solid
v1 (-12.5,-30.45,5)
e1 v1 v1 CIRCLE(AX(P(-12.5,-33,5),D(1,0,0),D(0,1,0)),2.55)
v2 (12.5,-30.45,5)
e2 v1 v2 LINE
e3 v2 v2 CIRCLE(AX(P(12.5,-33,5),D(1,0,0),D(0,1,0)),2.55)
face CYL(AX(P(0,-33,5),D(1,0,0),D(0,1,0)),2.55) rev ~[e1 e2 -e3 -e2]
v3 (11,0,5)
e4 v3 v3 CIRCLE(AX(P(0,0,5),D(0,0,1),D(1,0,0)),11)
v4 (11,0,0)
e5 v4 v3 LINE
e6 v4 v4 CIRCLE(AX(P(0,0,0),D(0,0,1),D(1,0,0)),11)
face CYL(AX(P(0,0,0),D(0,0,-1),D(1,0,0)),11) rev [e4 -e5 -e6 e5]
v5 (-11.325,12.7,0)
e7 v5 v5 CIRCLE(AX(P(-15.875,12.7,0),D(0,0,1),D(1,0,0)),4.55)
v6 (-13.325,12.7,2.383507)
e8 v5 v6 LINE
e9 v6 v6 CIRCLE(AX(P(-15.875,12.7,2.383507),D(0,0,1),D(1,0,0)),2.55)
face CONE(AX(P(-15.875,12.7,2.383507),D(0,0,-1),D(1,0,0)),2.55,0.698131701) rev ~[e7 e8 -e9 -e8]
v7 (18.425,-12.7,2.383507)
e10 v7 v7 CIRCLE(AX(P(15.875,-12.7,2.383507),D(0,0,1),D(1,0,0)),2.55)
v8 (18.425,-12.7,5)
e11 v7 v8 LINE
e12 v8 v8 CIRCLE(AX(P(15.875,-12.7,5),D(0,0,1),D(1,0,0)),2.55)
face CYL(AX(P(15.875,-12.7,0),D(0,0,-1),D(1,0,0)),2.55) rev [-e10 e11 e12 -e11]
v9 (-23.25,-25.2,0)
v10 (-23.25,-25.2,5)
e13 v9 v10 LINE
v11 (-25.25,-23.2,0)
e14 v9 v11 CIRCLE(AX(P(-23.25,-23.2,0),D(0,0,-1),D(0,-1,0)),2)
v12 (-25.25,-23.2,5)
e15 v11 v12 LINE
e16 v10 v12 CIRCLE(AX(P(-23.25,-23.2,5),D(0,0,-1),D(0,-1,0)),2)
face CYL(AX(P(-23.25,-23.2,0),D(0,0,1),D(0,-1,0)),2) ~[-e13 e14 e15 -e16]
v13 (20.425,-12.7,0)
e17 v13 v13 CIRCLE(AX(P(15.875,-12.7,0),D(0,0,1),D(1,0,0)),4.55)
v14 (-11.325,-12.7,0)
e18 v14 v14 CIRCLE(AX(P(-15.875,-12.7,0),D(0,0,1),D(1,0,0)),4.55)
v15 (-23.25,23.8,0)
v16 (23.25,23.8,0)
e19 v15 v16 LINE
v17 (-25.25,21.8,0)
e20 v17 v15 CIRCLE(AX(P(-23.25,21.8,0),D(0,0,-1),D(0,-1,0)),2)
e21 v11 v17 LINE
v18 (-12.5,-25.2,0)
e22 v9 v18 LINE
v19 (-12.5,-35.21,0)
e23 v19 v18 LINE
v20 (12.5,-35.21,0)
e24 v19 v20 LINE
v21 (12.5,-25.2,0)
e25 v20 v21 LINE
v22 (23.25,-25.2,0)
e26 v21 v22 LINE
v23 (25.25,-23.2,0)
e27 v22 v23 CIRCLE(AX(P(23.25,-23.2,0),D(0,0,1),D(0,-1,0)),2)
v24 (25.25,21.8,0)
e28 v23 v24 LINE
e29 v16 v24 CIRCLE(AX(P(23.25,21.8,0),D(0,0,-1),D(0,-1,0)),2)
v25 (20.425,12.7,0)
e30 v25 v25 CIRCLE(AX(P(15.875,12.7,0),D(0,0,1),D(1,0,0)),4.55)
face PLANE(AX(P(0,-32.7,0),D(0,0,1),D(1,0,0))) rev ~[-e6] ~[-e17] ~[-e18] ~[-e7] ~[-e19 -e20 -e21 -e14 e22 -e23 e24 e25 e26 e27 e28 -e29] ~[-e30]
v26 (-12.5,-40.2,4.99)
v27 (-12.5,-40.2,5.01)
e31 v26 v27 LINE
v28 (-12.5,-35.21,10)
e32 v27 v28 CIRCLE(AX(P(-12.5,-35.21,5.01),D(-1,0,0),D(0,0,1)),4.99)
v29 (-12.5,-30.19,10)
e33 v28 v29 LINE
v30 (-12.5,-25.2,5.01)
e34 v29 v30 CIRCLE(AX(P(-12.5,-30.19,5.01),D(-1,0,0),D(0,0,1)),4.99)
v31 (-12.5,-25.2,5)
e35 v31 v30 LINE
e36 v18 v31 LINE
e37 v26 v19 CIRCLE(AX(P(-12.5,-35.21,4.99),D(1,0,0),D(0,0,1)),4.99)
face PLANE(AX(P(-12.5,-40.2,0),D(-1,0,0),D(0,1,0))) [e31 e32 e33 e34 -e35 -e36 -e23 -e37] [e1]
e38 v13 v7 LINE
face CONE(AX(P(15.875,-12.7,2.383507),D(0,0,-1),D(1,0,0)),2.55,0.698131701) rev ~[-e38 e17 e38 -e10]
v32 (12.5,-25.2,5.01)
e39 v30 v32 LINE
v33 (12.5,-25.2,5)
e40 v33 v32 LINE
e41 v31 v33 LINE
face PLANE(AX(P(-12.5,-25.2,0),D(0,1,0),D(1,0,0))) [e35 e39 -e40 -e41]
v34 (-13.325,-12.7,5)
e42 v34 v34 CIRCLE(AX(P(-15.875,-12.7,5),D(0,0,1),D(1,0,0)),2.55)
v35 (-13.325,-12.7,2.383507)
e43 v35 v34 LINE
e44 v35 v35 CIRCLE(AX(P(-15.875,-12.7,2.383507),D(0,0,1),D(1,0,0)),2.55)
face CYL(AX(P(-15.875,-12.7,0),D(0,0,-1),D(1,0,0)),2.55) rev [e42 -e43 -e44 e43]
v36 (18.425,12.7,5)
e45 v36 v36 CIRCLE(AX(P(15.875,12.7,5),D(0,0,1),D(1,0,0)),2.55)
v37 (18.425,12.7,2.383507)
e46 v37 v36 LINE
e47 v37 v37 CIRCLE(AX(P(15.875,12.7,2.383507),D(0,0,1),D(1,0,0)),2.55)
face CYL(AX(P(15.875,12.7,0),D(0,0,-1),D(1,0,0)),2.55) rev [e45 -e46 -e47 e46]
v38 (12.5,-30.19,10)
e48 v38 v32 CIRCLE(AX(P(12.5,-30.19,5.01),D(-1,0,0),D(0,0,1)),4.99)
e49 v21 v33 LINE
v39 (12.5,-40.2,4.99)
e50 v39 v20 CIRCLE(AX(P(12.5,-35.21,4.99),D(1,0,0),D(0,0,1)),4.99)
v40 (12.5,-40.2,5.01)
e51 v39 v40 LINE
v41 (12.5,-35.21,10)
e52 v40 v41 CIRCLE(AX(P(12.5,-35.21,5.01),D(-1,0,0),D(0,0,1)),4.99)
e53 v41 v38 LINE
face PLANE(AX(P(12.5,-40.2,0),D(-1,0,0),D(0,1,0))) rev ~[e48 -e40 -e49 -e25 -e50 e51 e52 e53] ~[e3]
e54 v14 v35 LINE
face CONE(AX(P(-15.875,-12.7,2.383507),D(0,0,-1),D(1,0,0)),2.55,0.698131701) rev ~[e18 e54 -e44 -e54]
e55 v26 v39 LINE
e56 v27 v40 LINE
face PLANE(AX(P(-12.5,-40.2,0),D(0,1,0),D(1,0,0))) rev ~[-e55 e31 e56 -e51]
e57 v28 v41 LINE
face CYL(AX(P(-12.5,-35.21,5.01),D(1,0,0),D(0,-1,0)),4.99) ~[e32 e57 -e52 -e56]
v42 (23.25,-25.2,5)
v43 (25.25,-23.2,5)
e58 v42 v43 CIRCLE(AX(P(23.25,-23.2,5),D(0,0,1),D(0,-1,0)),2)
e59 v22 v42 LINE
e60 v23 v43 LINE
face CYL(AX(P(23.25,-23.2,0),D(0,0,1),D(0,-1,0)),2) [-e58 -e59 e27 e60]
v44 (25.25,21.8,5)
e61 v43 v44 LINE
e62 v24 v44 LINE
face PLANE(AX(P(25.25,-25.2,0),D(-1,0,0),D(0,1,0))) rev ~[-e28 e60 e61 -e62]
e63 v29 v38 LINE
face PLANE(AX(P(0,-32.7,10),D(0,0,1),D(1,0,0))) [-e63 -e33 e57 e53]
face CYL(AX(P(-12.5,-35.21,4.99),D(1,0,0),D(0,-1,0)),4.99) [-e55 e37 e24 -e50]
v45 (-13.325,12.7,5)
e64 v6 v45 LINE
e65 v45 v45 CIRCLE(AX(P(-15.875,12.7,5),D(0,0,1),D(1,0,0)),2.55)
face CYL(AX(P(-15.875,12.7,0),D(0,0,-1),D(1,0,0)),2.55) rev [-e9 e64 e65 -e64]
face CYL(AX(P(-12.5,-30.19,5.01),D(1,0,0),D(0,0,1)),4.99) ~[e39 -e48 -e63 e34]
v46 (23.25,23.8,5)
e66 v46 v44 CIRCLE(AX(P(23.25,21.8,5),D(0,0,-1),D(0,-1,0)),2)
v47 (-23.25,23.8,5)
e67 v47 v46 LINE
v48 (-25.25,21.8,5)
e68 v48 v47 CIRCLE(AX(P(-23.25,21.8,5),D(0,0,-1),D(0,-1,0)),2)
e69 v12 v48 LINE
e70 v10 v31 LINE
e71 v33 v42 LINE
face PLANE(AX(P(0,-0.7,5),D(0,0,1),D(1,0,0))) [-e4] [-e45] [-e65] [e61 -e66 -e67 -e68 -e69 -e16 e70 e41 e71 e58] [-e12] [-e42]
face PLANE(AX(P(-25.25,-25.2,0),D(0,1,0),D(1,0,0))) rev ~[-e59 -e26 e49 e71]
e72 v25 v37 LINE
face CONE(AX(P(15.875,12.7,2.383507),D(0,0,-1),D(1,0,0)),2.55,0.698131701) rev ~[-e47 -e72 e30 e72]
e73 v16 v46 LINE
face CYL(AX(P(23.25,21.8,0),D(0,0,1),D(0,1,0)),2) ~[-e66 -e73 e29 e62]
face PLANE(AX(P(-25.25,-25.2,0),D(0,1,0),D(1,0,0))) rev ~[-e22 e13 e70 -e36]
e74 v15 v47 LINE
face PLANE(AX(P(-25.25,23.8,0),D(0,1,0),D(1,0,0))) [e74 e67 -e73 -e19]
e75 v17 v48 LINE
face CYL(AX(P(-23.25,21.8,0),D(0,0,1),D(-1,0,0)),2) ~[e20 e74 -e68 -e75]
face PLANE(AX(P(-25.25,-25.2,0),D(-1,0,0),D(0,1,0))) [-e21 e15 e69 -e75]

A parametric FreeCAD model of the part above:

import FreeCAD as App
import Part
import Sketcher


def edges_at(feature, points):
    """Names of the edges that pass closest to the given points."""
    edges = feature.Shape.Edges
    near = lambda p: min(range(len(edges)), key=lambda i: edges[i].distToShape(Part.Vertex(*p))[0])
    return sorted({f"Edge{near(p) + 1}" for p in points})


def add_polygon(sketch, points):
    """Adds a closed chain of lines whose ends are joined by coincident constraints."""
    first, n = sketch.GeometryCount, len(points)
    for a, b in zip(points, points[1:] + points[:1]):
        sketch.addGeometry(Part.LineSegment(App.Vector(*a, 0), App.Vector(*b, 0)), False)
    for i in range(n):
        sketch.addConstraint(Sketcher.Constraint("Coincident", first + i, 2, first + (i + 1) % n, 1))

doc = App.newDocument("Part")
params = doc.addObject("Spreadsheet::Sheet", "Params")
for row, (alias, value) in enumerate([
    ("sketch1_diameter", "22 mm"),
    ("sketch1_diameter2", "5.1 mm"),
    ("sketch1_height", "49 mm"),
    ("sketch1_width", "50.5 mm"),
    ("pad1_length", "5 mm"),
    ("sketch2_width", "25 mm"),
    ("sketch2_height", "15 mm"),
    ("pad2_length", "10 mm"),
    ("sketch3_diameter", "5.1 mm"),
    ("pocket1_length", "25 mm"),
    ("fillet_radius", "4.99 mm"),
    ("fillet2_radius", "2 mm"),
    ("chamfer_size", "2 mm"),
], start=1):
    params.set(f"A{row}", alias)
    params.set(f"B{row}", "=" + value)
    params.setAlias(f"B{row}", alias)

body = doc.addObject("PartDesign::Body", "Body")

sketch1 = body.newObject("Sketcher::SketchObject", "Sketch")
sketch1.AttachmentSupport = (doc.getObject("XY_Plane"), [""])
sketch1.MapMode = "FlatFace"
add_polygon(sketch1, [(-25.2, 23.8), (-25.2, -25.2), (25.2, -25.2), (25.2, 23.8)])
sketch1.addGeometry(Part.Circle(App.Vector(-15.9, -12.7, 0), App.Vector(0, 0, 1), 2.5), False)
sketch1.addGeometry(Part.Circle(App.Vector(15.9, -12.7, 0), App.Vector(0, 0, 1), 2.5), False)
sketch1.addGeometry(Part.Circle(App.Vector(-15.9, 12.7, 0), App.Vector(0, 0, 1), 2.5), False)
sketch1.addGeometry(Part.Circle(App.Vector(0, 0, 0), App.Vector(0, 0, 1), 11), False)
sketch1.addGeometry(Part.Circle(App.Vector(15.9, 12.7, 0), App.Vector(0, 0, 1), 2.5), False)
sketch1.addConstraint([
    Sketcher.Constraint("Vertical", 0),
    Sketcher.Constraint("Horizontal", 1),
    Sketcher.Constraint("Vertical", 2),
    Sketcher.Constraint("Horizontal", 3),
    Sketcher.Constraint("Coincident", 7, 3, -1, 1),
    Sketcher.Constraint("Equal", 4, 5),
    Sketcher.Constraint("Equal", 5, 6),
    Sketcher.Constraint("Equal", 6, 8),
    Sketcher.Constraint("Symmetric", 5, 3, 6, 3, -1, 1),
    Sketcher.Constraint("Symmetric", 4, 3, 8, 3, -1, 1),
    Sketcher.Constraint("Symmetric", 4, 3, 5, 3, -2),
    Sketcher.Constraint("Diameter", 7, 22.0),
    Sketcher.Constraint("Diameter", 4, 5.1),
    Sketcher.Constraint("DistanceY", 0, 2, 0, 1, 49.0),
    Sketcher.Constraint("DistanceX", 1, 1, 1, 2, 50.5),
    Sketcher.Constraint("DistanceY", 4, 3, -1, 1, 12.7),
    Sketcher.Constraint("DistanceY", 0, 2, -1, 1, 25.2),
    Sketcher.Constraint("DistanceX", 0, 2, -1, 1, 25.25),
    Sketcher.Constraint("DistanceX", 4, 3, 5, 3, 31.75),
])
sketch1.setExpression("Constraints[15]", "Params.sketch1_diameter")
sketch1.setExpression("Constraints[16]", "Params.sketch1_diameter2")
sketch1.setExpression("Constraints[17]", "Params.sketch1_height")
sketch1.setExpression("Constraints[18]", "Params.sketch1_width")
pad1 = body.newObject("PartDesign::Pad", "Pad")
pad1.Profile = sketch1
pad1.setExpression("Length", "Params.pad1_length")

sketch2 = body.newObject("Sketcher::SketchObject", "Sketch001")
sketch2.AttachmentSupport = (doc.getObject("XY_Plane"), [""])
sketch2.MapMode = "FlatFace"
add_polygon(sketch2, [(-12, -25), (-12, -40), (12, -40), (12, -25)])
sketch2.addConstraint([
    Sketcher.Constraint("Vertical", 0),
    Sketcher.Constraint("Horizontal", 1),
    Sketcher.Constraint("Vertical", 2),
    Sketcher.Constraint("Horizontal", 3),
    Sketcher.Constraint("DistanceX", 1, 1, 1, 2, 25.0),
    Sketcher.Constraint("DistanceY", 0, 2, 0, 1, 15.0),
    Sketcher.Constraint("DistanceX", 0, 2, -1, 1, 12.5),
    Sketcher.Constraint("DistanceY", 0, 2, -1, 1, 40.2),
])
sketch2.setExpression("Constraints[8]", "Params.sketch2_width")
sketch2.setExpression("Constraints[9]", "Params.sketch2_height")
pad2 = body.newObject("PartDesign::Pad", "Pad001")
pad2.Profile = sketch2
pad2.setExpression("Length", "Params.pad2_length")

sketch3 = body.newObject("Sketcher::SketchObject", "Sketch002")
sketch3.AttachmentSupport = (doc.getObject("YZ_Plane"), [""])
sketch3.MapMode = "FlatFace"
sketch3.addGeometry(Part.Circle(App.Vector(-33, 5, 0), App.Vector(0, 0, 1), 2.5), False)
sketch3.addConstraint([
    Sketcher.Constraint("Diameter", 0, 5.1),
    Sketcher.Constraint("DistanceX", 0, 3, -1, 1, 33.0),
    Sketcher.Constraint("DistanceY", -1, 1, 0, 3, 5.0),
])
sketch3.setExpression("Constraints[0]", "Params.sketch3_diameter")
pocket1 = body.newObject("PartDesign::Pocket", "Pocket")
pocket1.Profile = sketch3
pocket1.setExpression("Length", "Params.pocket1_length")
pocket1.Midplane = True
doc.recompute()

fillet = body.newObject("PartDesign::Fillet", "Fillet")
fillet.Base = (pocket1, edges_at(pocket1, [(0, -25.2, 10), (0, -40.2, 10), (0, -40.2, 0)]))
fillet.setExpression("Radius", "Params.fillet_radius")
doc.recompute()

fillet2 = body.newObject("PartDesign::Fillet", "Fillet001")
fillet2.Base = (fillet, edges_at(fillet, [
    (25.25, 23.8, 2.5),
    (25.25, -25.2, 2.5),
    (-25.25, 23.8, 2.5),
    (-25.25, -25.2, 2.5),
]))
fillet2.setExpression("Radius", "Params.fillet2_radius")
doc.recompute()

chamfer = body.newObject("PartDesign::Chamfer", "Chamfer")
chamfer.Base = (fillet2, edges_at(fillet2, [
    (-18.425, 12.7, 0),
    (-18.425, -12.7, 0),
    (13.325, -12.7, 0),
    (13.325, 12.7, 0),
]))
chamfer.ChamferType = "Distance and Angle"
chamfer.setExpression("Size", "Params.chamfer_size")
chamfer.Angle = 50

doc.recompute()
